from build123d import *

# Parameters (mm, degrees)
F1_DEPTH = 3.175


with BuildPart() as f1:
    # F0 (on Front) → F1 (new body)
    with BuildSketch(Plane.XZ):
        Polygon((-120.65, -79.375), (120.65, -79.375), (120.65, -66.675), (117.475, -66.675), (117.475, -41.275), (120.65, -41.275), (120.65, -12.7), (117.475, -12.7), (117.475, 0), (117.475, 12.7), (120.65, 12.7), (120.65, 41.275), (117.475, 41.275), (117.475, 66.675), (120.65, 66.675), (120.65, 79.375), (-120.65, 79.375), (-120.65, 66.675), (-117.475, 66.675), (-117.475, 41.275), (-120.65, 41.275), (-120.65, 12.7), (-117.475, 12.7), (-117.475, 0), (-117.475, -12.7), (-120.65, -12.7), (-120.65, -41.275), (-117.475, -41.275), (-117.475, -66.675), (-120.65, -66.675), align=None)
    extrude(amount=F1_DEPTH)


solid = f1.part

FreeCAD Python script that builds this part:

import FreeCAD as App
import Part
import Sketcher
Q = App.Units.Quantity


def add_polygon(sketch, points):
    """Adds a closed chain of lines whose ends are joined by coincident constraints."""
    first, n = sketch.GeometryCount, len(points)
    for a, b in zip(points, points[1:] + points[:1]):
        sketch.addGeometry(Part.LineSegment(App.Vector(*a, 0), App.Vector(*b, 0)), False)
    for i in range(n):
        sketch.addConstraint(Sketcher.Constraint("Coincident", first + i, 2, first + (i + 1) % n, 1))

doc = App.newDocument("Part")
params = doc.addObject("Spreadsheet::Sheet", "Params")
for row, (alias, value) in enumerate([
    ("sketch1_height", "1 in"),
    ("sketch1_width", "9.5 in"),
    ("sketch1_height2", "0.5 in"),
    ("sketch1_width2", "0.125 in"),
    ("sketch1_height3", "1.125 in"),
    ("pad1_length", "0.125 in"),
], start=1):
    params.set(f"A{row}", alias)
    params.set(f"B{row}", "=" + value)
    params.setAlias(f"B{row}", alias)

body = doc.addObject("PartDesign::Body", "Body")

# Sketch on XZ plane
sketch1 = body.newObject("Sketcher::SketchObject", "Sketch")
sketch1.AttachmentSupport = (doc.getObject("XZ_Plane"), [""])
sketch1.MapMode = "FlatFace"
add_polygon(sketch1, [(-120.65, -79.375), (120.65, -79.375), (120.65, -66.675), (117.475, -66.675), (117.475, -41.275), (120.65, -41.275), (120.65, -12.7), (117.475, -12.7), (117.475, 12.7), (120.65, 12.7), (120.65, 41.275), (117.475, 41.275), (117.475, 66.675), (120.65, 66.675), (120.65, 79.375), (-120.65, 79.375), (-120.65, 66.675), (-117.475, 66.675), (-117.475, 41.275), (-120.65, 41.275), (-120.65, 12.7), (-117.475, 12.7), (-117.475, -12.7), (-120.65, -12.7), (-120.65, -41.275), (-117.475, -41.275), (-117.475, -66.675), (-120.65, -66.675)])  # lines 0-27
sketch1.addConstraint([
    Sketcher.Constraint("Horizontal", 0),
    Sketcher.Constraint("Vertical", 1),
    Sketcher.Constraint("Horizontal", 2),
    Sketcher.Constraint("Vertical", 3),
    Sketcher.Constraint("Horizontal", 4),
    Sketcher.Constraint("Vertical", 5),
    Sketcher.Constraint("Horizontal", 6),
    Sketcher.Constraint("Vertical", 7),
    Sketcher.Constraint("Horizontal", 8),
    Sketcher.Constraint("Vertical", 9),
    Sketcher.Constraint("Horizontal", 10),
    Sketcher.Constraint("Vertical", 11),
    Sketcher.Constraint("Horizontal", 12),
    Sketcher.Constraint("Vertical", 13),
    Sketcher.Constraint("Horizontal", 14),
    Sketcher.Constraint("Vertical", 15),
    Sketcher.Constraint("Horizontal", 16),
    Sketcher.Constraint("Vertical", 17),
    Sketcher.Constraint("Horizontal", 18),
    Sketcher.Constraint("Vertical", 19),
    Sketcher.Constraint("Horizontal", 20),
    Sketcher.Constraint("Vertical", 21),
    Sketcher.Constraint("Horizontal", 22),
    Sketcher.Constraint("Vertical", 23),
    Sketcher.Constraint("Horizontal", 24),
    Sketcher.Constraint("Vertical", 25),
    Sketcher.Constraint("Horizontal", 26),
    Sketcher.Constraint("Vertical", 27),
    Sketcher.Constraint("Symmetric", 0, 2, 14, 2, -1, 1),
    Sketcher.Constraint("Symmetric", 2, 2, 16, 2, -1, 1),
    Sketcher.Constraint("Symmetric", 4, 2, 18, 2, -1, 1),
    Sketcher.Constraint("Symmetric", 6, 2, 20, 2, -1, 1),
    Sketcher.Constraint("Symmetric", 8, 2, 22, 2, -1, 1),
    Sketcher.Constraint("Symmetric", 10, 2, 24, 2, -1, 1),
    Sketcher.Constraint("Symmetric", 12, 2, 26, 2, -1, 1),
    Sketcher.Constraint("Symmetric", 12, 2, 15, 2, -2),
    Sketcher.Constraint("Symmetric", 10, 2, 17, 2, -2),
    Sketcher.Constraint("Symmetric", 8, 2, 19, 2, -2),
    Sketcher.Constraint("Vertical", 1, 2, 4, 2),
    Sketcher.Constraint("Vertical", 3, 2, 6, 2),
    Sketcher.Constraint("Equal", 3, 7),
    Sketcher.Constraint("DistanceY", 3, 1, 3, 2, Q("1 in")),
    Sketcher.Constraint("DistanceX", 0, 1, 0, 2, Q("9.5 in")),
    Sketcher.Constraint("DistanceY", 1, 1, 1, 2, Q("0.5 in")),
    Sketcher.Constraint("DistanceX", 2, 2, 2, 1, Q("0.125 in")),
    Sketcher.Constraint("DistanceY", 5, 1, 5, 2, Q("1.125 in")),
])
sketch1.setExpression("Constraints[69]", "Params.sketch1_height")
sketch1.setExpression("Constraints[70]", "Params.sketch1_width")
sketch1.setExpression("Constraints[71]", "Params.sketch1_height2")
sketch1.setExpression("Constraints[72]", "Params.sketch1_width2")
sketch1.setExpression("Constraints[73]", "Params.sketch1_height3")
pad1 = body.newObject("PartDesign::Pad", "Pad")
pad1.Profile = sketch1
pad1.setExpression("Length", "Params.pad1_length")

doc.recompute()
